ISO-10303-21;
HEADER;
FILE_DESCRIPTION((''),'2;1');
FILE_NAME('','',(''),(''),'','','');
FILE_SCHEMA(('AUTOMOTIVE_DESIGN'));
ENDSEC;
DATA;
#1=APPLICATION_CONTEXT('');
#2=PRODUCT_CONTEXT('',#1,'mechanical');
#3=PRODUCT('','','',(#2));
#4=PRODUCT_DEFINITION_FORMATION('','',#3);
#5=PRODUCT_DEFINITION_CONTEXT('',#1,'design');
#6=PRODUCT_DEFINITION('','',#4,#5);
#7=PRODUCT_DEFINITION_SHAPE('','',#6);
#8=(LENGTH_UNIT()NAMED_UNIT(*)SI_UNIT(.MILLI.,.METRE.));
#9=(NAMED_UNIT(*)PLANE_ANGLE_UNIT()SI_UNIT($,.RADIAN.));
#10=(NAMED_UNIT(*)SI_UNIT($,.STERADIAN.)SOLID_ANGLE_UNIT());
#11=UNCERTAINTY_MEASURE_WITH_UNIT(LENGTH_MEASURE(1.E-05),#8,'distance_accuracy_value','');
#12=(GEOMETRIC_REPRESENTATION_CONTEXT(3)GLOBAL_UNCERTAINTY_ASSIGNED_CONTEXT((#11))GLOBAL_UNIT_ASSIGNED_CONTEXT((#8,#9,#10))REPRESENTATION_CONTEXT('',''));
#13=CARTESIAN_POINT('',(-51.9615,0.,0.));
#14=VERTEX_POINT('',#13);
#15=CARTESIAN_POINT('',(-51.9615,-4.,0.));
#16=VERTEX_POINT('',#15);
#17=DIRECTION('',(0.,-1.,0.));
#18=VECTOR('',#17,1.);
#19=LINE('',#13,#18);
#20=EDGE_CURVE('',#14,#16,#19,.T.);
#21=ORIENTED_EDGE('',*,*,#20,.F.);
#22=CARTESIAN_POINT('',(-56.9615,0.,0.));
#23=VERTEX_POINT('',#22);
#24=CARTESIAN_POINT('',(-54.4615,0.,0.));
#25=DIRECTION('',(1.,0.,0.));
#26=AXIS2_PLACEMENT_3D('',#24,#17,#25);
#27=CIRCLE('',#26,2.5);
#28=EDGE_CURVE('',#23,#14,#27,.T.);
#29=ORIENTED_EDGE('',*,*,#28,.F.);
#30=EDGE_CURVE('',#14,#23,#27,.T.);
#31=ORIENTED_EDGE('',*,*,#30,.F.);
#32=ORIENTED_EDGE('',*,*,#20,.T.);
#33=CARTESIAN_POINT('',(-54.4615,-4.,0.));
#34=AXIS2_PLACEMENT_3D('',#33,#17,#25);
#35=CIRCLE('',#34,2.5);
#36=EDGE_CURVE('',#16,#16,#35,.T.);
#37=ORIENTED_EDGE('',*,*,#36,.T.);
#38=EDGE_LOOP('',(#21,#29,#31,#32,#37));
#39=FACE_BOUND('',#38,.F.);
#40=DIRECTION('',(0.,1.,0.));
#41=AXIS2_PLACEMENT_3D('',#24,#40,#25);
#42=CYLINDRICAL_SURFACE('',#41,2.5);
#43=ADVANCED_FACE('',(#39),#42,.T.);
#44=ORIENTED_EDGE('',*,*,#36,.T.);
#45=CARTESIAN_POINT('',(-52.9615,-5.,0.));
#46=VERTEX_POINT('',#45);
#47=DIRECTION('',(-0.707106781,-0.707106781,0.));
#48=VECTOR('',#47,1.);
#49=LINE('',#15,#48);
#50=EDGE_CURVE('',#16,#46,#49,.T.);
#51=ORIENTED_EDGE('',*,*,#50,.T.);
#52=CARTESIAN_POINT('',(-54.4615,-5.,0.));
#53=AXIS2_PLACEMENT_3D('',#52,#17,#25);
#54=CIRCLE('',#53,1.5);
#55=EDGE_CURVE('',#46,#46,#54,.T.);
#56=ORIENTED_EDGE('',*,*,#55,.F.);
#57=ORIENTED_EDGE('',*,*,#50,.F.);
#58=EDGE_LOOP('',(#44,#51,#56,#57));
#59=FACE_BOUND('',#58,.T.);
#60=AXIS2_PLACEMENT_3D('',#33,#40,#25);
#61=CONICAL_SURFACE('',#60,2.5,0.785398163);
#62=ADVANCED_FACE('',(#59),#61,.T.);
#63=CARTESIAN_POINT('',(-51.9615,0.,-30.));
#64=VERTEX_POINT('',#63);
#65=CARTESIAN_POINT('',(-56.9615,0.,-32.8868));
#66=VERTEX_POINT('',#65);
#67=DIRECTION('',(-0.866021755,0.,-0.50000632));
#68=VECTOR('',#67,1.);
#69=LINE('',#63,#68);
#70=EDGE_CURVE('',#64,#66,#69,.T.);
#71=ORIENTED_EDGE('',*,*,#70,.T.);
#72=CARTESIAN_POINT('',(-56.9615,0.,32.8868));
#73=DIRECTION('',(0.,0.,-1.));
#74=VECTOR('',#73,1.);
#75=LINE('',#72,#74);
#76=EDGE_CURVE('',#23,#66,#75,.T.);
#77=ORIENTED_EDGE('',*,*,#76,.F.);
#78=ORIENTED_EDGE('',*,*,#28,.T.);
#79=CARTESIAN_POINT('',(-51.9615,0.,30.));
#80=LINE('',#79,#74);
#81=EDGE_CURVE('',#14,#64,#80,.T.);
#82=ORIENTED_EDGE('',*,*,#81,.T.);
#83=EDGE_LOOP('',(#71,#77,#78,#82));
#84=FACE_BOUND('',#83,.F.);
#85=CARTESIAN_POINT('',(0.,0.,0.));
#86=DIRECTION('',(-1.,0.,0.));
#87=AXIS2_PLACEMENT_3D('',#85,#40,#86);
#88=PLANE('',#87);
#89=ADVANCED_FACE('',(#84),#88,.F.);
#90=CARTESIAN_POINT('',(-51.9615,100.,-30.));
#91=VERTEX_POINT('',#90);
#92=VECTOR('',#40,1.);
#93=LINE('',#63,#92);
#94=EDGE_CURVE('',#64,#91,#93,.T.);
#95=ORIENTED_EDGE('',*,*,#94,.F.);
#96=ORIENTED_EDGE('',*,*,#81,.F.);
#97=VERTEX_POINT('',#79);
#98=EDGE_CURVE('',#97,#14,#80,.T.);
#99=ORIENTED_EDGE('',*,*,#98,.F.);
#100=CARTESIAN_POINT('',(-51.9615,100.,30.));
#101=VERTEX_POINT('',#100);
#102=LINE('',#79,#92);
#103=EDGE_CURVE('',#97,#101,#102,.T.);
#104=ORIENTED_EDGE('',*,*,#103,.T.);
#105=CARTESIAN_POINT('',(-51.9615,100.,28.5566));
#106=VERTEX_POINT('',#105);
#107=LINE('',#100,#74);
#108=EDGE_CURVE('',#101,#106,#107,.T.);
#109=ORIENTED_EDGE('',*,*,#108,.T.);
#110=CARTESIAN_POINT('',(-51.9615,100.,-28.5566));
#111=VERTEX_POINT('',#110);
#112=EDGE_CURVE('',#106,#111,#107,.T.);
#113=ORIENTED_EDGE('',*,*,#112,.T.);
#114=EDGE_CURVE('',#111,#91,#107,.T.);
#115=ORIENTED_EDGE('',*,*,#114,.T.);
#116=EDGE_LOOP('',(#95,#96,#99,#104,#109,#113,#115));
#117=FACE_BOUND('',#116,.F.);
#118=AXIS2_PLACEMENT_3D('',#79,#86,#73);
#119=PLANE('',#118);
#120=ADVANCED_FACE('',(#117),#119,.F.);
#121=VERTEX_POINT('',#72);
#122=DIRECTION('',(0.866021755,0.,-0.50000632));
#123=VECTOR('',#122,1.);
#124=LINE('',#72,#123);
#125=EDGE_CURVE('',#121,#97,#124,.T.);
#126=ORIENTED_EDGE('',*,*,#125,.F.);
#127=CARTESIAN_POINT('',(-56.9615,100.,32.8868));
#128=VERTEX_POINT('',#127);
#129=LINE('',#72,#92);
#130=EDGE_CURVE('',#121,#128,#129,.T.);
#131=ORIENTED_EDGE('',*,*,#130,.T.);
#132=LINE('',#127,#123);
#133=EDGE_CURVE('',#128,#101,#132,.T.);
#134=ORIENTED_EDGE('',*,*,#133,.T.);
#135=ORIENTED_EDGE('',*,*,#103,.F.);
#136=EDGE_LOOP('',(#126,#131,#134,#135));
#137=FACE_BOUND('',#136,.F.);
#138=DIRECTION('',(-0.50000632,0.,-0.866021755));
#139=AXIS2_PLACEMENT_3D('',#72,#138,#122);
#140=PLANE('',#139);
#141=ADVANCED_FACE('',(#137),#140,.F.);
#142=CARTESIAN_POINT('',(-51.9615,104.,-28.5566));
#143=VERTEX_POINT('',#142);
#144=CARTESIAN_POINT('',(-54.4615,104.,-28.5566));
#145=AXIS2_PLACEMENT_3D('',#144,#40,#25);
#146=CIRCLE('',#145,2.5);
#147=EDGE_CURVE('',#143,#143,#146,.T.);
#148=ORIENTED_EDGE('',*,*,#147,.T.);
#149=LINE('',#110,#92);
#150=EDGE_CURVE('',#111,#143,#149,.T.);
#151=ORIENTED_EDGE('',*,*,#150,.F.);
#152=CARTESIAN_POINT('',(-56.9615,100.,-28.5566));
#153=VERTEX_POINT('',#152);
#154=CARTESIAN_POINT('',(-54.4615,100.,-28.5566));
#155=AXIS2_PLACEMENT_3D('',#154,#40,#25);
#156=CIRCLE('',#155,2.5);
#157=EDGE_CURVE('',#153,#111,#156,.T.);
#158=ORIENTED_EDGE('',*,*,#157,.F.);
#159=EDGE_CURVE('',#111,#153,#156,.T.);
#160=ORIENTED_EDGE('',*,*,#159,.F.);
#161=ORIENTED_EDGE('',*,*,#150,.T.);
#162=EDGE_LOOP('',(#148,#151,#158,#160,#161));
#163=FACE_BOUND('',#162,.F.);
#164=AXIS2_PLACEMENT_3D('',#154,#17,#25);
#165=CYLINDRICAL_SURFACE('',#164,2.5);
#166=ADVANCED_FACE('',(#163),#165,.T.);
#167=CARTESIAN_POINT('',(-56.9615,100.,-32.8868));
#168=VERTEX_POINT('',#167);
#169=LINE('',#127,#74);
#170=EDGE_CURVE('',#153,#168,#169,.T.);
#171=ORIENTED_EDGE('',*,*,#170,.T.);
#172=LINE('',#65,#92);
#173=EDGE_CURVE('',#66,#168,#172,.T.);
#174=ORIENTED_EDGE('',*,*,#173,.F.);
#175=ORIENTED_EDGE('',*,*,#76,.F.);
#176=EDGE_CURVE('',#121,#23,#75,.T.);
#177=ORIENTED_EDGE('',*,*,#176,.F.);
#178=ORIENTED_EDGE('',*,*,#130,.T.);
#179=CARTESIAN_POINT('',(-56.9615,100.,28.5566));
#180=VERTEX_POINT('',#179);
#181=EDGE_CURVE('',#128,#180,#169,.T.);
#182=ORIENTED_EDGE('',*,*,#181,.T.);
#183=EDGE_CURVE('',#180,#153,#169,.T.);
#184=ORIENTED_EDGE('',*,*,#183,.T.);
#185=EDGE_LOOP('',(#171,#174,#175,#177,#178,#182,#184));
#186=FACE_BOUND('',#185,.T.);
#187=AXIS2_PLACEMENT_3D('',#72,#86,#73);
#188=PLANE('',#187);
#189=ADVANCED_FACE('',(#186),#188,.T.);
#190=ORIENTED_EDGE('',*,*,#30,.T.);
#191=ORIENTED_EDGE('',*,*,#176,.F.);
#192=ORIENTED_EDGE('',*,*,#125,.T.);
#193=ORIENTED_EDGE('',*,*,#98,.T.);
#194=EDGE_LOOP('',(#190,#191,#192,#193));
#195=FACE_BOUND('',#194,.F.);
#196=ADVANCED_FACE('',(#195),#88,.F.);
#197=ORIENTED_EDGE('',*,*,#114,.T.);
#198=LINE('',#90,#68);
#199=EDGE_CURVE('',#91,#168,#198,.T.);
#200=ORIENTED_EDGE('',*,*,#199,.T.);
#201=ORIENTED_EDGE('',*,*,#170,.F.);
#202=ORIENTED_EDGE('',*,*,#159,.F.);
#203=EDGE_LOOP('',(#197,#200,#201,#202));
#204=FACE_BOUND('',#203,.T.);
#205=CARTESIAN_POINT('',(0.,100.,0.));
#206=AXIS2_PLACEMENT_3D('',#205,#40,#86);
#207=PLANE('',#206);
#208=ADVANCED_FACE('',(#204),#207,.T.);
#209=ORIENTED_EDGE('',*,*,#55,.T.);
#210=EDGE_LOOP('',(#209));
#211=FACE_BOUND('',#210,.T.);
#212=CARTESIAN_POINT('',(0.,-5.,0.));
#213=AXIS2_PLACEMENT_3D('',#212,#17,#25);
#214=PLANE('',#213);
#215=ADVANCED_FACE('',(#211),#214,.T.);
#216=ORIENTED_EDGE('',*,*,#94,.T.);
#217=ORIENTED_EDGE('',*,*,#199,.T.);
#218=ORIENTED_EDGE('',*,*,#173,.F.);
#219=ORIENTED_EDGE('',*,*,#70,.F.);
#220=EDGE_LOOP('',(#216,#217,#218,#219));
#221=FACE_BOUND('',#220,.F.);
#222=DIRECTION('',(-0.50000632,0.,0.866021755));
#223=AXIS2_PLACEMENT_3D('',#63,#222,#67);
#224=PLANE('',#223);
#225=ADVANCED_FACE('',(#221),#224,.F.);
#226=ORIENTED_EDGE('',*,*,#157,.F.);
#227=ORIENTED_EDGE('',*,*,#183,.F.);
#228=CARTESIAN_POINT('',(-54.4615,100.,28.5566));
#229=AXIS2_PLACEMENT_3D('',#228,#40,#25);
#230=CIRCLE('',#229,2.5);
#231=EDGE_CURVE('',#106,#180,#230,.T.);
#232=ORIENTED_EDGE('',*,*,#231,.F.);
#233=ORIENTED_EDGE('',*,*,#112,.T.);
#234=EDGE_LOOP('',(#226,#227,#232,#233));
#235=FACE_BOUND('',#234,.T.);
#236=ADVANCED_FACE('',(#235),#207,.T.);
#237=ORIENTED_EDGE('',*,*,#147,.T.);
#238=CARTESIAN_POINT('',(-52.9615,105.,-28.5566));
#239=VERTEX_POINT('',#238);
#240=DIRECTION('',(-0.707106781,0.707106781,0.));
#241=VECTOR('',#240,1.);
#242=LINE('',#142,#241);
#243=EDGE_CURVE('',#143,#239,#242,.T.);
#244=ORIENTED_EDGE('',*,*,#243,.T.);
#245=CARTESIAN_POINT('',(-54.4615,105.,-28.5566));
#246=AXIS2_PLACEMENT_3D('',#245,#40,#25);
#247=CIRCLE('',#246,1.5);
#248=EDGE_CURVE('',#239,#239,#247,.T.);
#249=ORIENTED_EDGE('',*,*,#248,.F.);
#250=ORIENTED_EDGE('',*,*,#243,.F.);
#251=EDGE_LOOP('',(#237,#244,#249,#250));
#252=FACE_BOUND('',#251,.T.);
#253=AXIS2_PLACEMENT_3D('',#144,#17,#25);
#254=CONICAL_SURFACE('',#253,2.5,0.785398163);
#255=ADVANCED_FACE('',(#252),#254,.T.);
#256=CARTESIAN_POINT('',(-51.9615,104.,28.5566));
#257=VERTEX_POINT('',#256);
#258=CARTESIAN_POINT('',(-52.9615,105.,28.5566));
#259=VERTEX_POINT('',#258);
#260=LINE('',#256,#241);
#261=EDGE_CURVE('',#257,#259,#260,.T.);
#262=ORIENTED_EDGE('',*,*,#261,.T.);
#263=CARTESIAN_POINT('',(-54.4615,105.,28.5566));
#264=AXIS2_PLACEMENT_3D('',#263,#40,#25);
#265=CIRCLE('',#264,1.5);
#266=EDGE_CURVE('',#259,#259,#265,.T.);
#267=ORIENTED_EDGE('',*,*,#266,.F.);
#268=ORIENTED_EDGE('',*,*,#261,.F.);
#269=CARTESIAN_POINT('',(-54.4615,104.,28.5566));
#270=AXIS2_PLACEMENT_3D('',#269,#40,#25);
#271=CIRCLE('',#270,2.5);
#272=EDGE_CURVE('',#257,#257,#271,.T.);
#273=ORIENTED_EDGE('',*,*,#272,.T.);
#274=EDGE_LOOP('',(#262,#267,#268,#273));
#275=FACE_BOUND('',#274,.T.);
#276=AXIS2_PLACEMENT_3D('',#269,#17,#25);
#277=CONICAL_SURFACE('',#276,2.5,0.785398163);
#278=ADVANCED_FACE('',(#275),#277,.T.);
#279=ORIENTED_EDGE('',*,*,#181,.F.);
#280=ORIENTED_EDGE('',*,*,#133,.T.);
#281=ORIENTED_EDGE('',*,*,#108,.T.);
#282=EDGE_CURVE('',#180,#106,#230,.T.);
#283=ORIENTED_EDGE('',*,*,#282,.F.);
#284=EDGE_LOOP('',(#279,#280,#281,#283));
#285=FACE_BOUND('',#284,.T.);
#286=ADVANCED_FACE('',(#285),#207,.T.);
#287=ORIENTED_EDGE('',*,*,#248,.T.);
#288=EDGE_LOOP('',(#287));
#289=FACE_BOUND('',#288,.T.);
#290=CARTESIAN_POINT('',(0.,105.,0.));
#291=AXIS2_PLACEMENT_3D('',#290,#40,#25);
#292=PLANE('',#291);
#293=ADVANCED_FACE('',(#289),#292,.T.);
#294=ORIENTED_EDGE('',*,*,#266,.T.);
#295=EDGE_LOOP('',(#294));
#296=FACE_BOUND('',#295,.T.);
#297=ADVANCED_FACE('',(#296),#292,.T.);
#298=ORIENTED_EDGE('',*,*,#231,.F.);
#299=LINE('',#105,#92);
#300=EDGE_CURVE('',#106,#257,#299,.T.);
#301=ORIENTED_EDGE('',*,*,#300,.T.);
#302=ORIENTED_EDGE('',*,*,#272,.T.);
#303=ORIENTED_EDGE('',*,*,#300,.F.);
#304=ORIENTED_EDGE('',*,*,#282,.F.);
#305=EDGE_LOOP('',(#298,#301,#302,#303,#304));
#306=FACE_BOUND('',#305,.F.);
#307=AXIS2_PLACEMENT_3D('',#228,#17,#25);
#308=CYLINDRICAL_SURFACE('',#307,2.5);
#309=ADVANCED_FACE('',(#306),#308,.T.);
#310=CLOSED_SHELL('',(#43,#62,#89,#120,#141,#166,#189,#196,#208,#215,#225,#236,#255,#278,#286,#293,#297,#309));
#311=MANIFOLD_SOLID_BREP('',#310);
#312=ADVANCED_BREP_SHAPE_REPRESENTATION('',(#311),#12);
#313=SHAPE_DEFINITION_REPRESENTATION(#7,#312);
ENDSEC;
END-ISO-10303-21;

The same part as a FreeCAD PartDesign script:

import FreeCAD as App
import Part
import Sketcher
from FreeCAD import Vector
Q = App.Units.Quantity


def edges_at(feature, points):
    """Names of the edges that pass closest to the given points."""
    edges = feature.Shape.Edges
    near = lambda p: min(range(len(edges)), key=lambda i: edges[i].distToShape(Part.Vertex(*p))[0])
    return sorted({f"Edge{near(p) + 1}" for p in points})

doc = App.newDocument("Part")
params = doc.addObject("Spreadsheet::Sheet", "Params")
for row, (alias, value) in enumerate([
    ("sketch1_height", "60 mm"),
    ("pad1_length", "100 mm"),
    ("sketch2_diameter", "5 mm"),
    ("pad2_length", "5 mm"),
    ("sketch3_diameter", "5 mm"),
    ("pad3_length", "5 mm"),
    ("chamfer_size", "1 mm"),
], start=1):
    params.set(f"A{row}", alias)
    params.set(f"B{row}", "=" + value)
    params.setAlias(f"B{row}", alias)

body = doc.addObject("PartDesign::Body", "Body")

sketch1 = body.newObject("Sketcher::SketchObject", "Sketch")
sketch1.AttachmentSupport = (doc.getObject("XZ_Plane"), [""])
sketch1.MapMode = "FlatFace"
sketch1.addGeometry([
    Part.LineSegment(Vector(-52, 30, 0), Vector(-52, -30, 0)),
    Part.LineSegment(Vector(-52, -30, 0), Vector(-57, -33, 0)),
    Part.LineSegment(Vector(-57, -33, 0), Vector(-57, 33, 0)),
    Part.LineSegment(Vector(-57, 33, 0), Vector(-52, 30, 0)),
], False)
sketch1.addConstraint([
    Sketcher.Constraint("Coincident", 0, 2, 1, 1),
    Sketcher.Constraint("Coincident", 1, 2, 2, 1),
    Sketcher.Constraint("Coincident", 2, 2, 3, 1),
    Sketcher.Constraint("Coincident", 3, 2, 0, 1),
    Sketcher.Constraint("Vertical", 0),
    Sketcher.Constraint("Vertical", 2),
    Sketcher.Constraint("Equal", 1, 3),
    Sketcher.Constraint("DistanceY", 0, 2, 0, 1, Q("60 mm")),
    Sketcher.Constraint("DistanceX", 1, 2, 0, 2, Q("5 mm")),
    Sketcher.Constraint("Angle", 1, Q("-149.9996 deg")),
    Sketcher.Constraint("DistanceY", 0, 2, -1, 1, Q("30 mm")),
    Sketcher.Constraint("DistanceX", 0, 2, -1, 1, Q("51.9615 mm")),
])
sketch1.setExpression("Constraints[7]", "Params.sketch1_height")
pad1 = body.newObject("PartDesign::Pad", "Pad")
pad1.Profile = sketch1
pad1.setExpression("Length", "Params.pad1_length")
pad1.Reversed = True

sketch2 = body.newObject("Sketcher::SketchObject", "Sketch001")
sketch2.AttachmentSupport = (doc.getObject("XZ_Plane"), [""])
sketch2.MapMode = "FlatFace"
sketch2.AttachmentOffset = App.Placement(Vector(0, 0, -100), App.Rotation())
sketch2.addGeometry([
    Part.Circle(Vector(-54.5, -28.6, 0), Vector(0, 0, 1), 2.5),
    Part.Circle(Vector(-54.5, 28.6, 0), Vector(0, 0, 1), 2.5),
], False)
sketch2.addConstraint([
    Sketcher.Constraint("Equal", 0, 1),
    Sketcher.Constraint("Symmetric", 0, 3, 1, 3, -1),
    Sketcher.Constraint("Diameter", 0, Q("5 mm")),
    Sketcher.Constraint("DistanceX", 0, 3, -1, 1, Q("54.4615 mm")),
    Sketcher.Constraint("DistanceY", 0, 3, -1, 1, Q("28.5566 mm")),
])
sketch2.setExpression("Constraints[2]", "Params.sketch2_diameter")
pad2 = body.newObject("PartDesign::Pad", "Pad001")
pad2.Profile = sketch2
pad2.setExpression("Length", "Params.pad2_length")
pad2.Reversed = True

sketch3 = body.newObject("Sketcher::SketchObject", "Sketch002")
sketch3.AttachmentSupport = (doc.getObject("XZ_Plane"), [""])
sketch3.MapMode = "FlatFace"
sketch3.addGeometry(Part.Circle(Vector(-54.5, 0, 0), Vector(0, 0, 1), 2.5), False)
sketch3.addConstraint([
    Sketcher.Constraint("PointOnObject", 0, 3, -1),
    Sketcher.Constraint("Diameter", 0, Q("5 mm")),
    Sketcher.Constraint("DistanceX", 0, 3, -1, 1, Q("54.4615 mm")),
])
sketch3.setExpression("Constraints[1]", "Params.sketch3_diameter")
pad3 = body.newObject("PartDesign::Pad", "Pad002")
pad3.Profile = sketch3
pad3.setExpression("Length", "Params.pad3_length")
doc.recompute()

chamfer = body.newObject("PartDesign::Chamfer", "Chamfer")
chamfer.Base = (pad3, edges_at(pad3, [(-56.962, 105, 28.557), (-56.962, 105, -28.557), (-56.962, -5, 0)]))
chamfer.setExpression("Size", "Params.chamfer_size")

doc.recompute()
